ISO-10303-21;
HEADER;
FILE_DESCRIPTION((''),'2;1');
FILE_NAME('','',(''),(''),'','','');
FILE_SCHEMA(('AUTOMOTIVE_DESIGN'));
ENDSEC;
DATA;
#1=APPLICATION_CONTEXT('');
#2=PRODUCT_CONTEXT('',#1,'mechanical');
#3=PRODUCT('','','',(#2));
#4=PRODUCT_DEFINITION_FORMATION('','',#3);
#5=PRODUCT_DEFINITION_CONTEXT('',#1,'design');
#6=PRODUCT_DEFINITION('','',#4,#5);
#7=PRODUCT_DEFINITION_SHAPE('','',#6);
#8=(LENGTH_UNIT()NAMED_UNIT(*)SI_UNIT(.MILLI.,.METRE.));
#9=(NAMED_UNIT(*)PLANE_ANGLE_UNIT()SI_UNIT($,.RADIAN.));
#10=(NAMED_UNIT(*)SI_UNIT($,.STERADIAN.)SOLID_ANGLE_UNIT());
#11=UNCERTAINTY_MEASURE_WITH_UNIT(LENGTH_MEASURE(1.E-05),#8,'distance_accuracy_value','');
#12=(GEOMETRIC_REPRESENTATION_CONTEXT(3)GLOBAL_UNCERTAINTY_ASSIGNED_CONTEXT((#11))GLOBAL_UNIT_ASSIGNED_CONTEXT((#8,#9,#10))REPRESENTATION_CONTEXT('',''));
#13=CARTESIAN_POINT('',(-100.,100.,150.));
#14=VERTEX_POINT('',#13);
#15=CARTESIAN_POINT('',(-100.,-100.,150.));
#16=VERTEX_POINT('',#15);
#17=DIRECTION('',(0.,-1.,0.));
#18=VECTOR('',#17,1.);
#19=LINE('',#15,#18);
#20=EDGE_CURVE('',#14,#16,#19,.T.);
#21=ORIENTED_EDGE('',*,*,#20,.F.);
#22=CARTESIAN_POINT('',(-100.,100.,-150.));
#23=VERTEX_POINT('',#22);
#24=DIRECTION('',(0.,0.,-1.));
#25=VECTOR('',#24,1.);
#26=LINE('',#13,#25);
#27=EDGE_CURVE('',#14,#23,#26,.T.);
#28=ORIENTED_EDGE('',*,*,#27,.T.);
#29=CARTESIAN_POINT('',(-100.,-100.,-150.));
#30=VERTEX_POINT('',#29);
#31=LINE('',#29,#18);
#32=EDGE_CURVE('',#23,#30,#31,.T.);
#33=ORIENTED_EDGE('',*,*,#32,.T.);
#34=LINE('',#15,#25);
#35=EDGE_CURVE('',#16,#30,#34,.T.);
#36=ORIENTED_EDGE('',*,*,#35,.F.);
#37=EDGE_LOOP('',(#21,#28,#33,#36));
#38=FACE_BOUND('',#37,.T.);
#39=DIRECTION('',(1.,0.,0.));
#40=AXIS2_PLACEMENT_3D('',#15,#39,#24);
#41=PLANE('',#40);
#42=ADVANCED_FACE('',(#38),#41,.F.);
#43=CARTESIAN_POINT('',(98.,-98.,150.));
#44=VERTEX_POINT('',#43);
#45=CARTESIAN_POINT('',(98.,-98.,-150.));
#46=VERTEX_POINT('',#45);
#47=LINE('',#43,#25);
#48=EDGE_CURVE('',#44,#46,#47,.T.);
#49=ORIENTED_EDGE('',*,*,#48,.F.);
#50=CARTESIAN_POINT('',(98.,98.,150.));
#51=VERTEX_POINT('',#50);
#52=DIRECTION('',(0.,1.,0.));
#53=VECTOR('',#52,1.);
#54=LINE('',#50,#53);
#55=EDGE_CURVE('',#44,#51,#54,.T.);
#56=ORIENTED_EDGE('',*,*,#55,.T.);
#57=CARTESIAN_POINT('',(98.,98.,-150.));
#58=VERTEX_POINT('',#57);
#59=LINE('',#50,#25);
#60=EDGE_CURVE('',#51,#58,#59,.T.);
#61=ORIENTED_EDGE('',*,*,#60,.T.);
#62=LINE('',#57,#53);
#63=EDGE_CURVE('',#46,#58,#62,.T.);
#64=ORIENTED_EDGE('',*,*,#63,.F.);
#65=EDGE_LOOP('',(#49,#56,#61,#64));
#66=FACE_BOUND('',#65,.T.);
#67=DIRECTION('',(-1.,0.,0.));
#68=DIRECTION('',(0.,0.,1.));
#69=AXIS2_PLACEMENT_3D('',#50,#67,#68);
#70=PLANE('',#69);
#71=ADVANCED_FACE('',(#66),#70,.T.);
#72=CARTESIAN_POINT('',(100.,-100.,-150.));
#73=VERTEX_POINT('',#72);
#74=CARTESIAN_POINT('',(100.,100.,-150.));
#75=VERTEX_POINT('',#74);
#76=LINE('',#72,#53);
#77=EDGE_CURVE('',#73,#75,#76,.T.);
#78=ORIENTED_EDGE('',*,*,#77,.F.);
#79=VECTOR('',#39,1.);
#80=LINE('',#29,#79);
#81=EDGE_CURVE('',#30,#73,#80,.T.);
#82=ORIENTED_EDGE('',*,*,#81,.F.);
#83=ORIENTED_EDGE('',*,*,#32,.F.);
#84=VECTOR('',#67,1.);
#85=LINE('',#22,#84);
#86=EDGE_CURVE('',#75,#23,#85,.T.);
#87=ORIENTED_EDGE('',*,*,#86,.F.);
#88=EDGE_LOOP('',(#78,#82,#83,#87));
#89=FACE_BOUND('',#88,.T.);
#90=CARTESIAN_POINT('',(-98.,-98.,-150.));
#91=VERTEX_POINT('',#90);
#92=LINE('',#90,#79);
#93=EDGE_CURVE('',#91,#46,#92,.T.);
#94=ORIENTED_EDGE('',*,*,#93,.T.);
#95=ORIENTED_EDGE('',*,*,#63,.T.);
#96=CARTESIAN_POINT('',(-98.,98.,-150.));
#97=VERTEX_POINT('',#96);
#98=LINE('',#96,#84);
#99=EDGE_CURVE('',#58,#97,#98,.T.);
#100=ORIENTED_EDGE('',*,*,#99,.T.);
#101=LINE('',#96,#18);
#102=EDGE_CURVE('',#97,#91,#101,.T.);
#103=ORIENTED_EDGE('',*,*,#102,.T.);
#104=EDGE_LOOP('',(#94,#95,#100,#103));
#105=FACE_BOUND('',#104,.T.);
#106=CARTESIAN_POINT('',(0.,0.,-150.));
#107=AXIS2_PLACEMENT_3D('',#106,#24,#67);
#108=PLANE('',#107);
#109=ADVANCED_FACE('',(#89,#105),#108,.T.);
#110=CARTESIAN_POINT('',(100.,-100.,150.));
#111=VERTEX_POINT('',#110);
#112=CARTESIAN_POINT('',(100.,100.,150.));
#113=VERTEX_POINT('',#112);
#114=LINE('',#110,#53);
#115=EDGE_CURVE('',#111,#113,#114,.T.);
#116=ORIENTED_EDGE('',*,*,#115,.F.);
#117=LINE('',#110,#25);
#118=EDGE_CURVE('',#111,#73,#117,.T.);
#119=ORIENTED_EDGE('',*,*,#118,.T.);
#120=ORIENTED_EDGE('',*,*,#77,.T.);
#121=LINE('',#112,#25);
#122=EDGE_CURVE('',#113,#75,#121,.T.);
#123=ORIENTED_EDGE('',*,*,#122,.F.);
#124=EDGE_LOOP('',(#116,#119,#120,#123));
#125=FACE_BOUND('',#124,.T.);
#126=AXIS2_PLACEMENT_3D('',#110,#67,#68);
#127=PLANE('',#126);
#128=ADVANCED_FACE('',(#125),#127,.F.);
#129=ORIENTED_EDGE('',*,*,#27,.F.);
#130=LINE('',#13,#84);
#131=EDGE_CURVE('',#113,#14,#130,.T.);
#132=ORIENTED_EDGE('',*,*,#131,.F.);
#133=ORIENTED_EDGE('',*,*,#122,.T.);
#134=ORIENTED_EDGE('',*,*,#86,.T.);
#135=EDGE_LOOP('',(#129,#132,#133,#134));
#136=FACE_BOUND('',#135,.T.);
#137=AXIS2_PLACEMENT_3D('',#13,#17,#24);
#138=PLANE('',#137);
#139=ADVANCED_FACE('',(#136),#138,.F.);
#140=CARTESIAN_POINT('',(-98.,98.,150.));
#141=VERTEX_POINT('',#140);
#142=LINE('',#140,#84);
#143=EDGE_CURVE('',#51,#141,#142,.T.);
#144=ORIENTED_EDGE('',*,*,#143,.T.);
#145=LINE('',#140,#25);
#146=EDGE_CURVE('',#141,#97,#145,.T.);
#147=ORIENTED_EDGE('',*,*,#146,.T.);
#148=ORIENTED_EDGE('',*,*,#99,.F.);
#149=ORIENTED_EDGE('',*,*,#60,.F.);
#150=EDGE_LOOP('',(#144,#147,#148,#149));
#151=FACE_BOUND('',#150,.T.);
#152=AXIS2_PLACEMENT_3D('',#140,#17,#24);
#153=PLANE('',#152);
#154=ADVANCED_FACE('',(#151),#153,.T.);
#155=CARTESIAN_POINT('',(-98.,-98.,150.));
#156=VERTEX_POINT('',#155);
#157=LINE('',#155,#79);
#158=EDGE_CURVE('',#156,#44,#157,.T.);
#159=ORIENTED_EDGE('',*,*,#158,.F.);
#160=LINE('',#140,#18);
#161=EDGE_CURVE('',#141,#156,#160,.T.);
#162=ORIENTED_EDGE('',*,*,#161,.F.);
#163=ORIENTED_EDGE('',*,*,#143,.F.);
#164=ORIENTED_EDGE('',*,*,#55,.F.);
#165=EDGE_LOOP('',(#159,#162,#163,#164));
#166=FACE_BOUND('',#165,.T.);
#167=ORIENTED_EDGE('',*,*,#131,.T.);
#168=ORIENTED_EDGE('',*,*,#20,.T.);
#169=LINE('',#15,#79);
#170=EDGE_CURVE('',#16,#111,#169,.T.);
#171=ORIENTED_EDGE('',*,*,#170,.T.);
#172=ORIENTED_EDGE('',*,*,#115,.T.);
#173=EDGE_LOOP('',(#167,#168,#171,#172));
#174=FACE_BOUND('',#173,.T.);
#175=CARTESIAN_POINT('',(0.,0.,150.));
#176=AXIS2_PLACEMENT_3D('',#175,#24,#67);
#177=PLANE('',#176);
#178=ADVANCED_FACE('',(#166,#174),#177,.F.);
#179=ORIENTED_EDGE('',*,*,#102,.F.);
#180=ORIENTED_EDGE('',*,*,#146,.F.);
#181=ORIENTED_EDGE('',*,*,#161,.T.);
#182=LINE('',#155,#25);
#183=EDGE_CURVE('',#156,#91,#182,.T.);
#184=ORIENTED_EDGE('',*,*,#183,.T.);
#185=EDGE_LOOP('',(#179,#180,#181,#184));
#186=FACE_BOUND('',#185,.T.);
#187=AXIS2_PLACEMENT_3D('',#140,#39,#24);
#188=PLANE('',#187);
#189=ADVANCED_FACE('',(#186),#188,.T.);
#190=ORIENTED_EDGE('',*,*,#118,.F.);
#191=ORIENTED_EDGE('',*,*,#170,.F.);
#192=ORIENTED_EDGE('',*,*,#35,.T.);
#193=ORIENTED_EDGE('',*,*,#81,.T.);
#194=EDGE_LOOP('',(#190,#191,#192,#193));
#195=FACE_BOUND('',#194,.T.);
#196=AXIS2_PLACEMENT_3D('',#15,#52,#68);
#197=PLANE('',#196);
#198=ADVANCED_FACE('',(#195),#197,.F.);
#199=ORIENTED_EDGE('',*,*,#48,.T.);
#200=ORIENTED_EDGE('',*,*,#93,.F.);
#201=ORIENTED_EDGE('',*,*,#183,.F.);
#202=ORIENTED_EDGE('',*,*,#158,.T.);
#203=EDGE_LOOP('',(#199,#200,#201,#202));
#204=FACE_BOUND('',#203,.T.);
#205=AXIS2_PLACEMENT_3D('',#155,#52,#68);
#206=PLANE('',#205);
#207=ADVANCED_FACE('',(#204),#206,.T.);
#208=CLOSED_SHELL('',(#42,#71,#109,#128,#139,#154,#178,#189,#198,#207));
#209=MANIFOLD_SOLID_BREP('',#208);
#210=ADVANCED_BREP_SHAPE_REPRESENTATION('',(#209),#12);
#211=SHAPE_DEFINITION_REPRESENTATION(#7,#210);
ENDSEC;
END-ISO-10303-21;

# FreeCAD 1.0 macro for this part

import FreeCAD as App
import Part
import Sketcher

doc = App.newDocument("Part")
body = doc.addObject("PartDesign::Body", "Body")

sketch1 = doc.addObject("Sketcher::SketchObject", "Sketch")
body.addObject(sketch1)
sketch1.AttachmentSupport = (doc.XY_Plane, [""])
sketch1.MapMode = "FlatFace"
sketch1.addGeometry([
    Part.LineSegment(App.Vector(-100, 100, 0), App.Vector(-100, -100, 0)),
    Part.LineSegment(App.Vector(-100, -100, 0), App.Vector(100, -100, 0)),
    Part.LineSegment(App.Vector(100, -100, 0), App.Vector(100, 100, 0)),
    Part.LineSegment(App.Vector(100, 100, 0), App.Vector(-100, 100, 0)),
    Part.LineSegment(App.Vector(98, -98, 0), App.Vector(-98, -98, 0)),
    Part.LineSegment(App.Vector(-98, -98, 0), App.Vector(-98, 98, 0)),
    Part.LineSegment(App.Vector(-98, 98, 0), App.Vector(98, 98, 0)),
    Part.LineSegment(App.Vector(98, 98, 0), App.Vector(98, -98, 0)),
], False)
sketch1.addConstraint([
    Sketcher.Constraint("Coincident", 0, 2, 1, 1),
    Sketcher.Constraint("Coincident", 1, 2, 2, 1),
    Sketcher.Constraint("Coincident", 2, 2, 3, 1),
    Sketcher.Constraint("Coincident", 3, 2, 0, 1),
    Sketcher.Constraint("Coincident", 4, 2, 5, 1),
    Sketcher.Constraint("Coincident", 5, 2, 6, 1),
    Sketcher.Constraint("Coincident", 6, 2, 7, 1),
    Sketcher.Constraint("Coincident", 7, 2, 4, 1),
    Sketcher.Constraint("Vertical", 0),
    Sketcher.Constraint("Horizontal", 1),
    Sketcher.Constraint("Vertical", 2),
    Sketcher.Constraint("Horizontal", 3),
    Sketcher.Constraint("Horizontal", 4),
    Sketcher.Constraint("Vertical", 5),
    Sketcher.Constraint("Horizontal", 6),
    Sketcher.Constraint("Vertical", 7),
    Sketcher.Constraint("Symmetric", 0, 2, 2, 2, -1, 1),
    Sketcher.Constraint("Symmetric", 4, 2, 6, 2, -1, 1),
    Sketcher.Constraint("Equal", 3, 0),
    Sketcher.Constraint("Equal", 6, 5),
    Sketcher.Constraint("DistanceX", 1, 1, 1, 2, 200.0),
    Sketcher.Constraint("DistanceX", 4, 2, 4, 1, 196.0),
])
pad1 = doc.addObject("PartDesign::Pad", "Pad")
body.addObject(pad1)
pad1.Profile = sketch1
pad1.Length = 300
pad1.Midplane = True

doc.recompute()
